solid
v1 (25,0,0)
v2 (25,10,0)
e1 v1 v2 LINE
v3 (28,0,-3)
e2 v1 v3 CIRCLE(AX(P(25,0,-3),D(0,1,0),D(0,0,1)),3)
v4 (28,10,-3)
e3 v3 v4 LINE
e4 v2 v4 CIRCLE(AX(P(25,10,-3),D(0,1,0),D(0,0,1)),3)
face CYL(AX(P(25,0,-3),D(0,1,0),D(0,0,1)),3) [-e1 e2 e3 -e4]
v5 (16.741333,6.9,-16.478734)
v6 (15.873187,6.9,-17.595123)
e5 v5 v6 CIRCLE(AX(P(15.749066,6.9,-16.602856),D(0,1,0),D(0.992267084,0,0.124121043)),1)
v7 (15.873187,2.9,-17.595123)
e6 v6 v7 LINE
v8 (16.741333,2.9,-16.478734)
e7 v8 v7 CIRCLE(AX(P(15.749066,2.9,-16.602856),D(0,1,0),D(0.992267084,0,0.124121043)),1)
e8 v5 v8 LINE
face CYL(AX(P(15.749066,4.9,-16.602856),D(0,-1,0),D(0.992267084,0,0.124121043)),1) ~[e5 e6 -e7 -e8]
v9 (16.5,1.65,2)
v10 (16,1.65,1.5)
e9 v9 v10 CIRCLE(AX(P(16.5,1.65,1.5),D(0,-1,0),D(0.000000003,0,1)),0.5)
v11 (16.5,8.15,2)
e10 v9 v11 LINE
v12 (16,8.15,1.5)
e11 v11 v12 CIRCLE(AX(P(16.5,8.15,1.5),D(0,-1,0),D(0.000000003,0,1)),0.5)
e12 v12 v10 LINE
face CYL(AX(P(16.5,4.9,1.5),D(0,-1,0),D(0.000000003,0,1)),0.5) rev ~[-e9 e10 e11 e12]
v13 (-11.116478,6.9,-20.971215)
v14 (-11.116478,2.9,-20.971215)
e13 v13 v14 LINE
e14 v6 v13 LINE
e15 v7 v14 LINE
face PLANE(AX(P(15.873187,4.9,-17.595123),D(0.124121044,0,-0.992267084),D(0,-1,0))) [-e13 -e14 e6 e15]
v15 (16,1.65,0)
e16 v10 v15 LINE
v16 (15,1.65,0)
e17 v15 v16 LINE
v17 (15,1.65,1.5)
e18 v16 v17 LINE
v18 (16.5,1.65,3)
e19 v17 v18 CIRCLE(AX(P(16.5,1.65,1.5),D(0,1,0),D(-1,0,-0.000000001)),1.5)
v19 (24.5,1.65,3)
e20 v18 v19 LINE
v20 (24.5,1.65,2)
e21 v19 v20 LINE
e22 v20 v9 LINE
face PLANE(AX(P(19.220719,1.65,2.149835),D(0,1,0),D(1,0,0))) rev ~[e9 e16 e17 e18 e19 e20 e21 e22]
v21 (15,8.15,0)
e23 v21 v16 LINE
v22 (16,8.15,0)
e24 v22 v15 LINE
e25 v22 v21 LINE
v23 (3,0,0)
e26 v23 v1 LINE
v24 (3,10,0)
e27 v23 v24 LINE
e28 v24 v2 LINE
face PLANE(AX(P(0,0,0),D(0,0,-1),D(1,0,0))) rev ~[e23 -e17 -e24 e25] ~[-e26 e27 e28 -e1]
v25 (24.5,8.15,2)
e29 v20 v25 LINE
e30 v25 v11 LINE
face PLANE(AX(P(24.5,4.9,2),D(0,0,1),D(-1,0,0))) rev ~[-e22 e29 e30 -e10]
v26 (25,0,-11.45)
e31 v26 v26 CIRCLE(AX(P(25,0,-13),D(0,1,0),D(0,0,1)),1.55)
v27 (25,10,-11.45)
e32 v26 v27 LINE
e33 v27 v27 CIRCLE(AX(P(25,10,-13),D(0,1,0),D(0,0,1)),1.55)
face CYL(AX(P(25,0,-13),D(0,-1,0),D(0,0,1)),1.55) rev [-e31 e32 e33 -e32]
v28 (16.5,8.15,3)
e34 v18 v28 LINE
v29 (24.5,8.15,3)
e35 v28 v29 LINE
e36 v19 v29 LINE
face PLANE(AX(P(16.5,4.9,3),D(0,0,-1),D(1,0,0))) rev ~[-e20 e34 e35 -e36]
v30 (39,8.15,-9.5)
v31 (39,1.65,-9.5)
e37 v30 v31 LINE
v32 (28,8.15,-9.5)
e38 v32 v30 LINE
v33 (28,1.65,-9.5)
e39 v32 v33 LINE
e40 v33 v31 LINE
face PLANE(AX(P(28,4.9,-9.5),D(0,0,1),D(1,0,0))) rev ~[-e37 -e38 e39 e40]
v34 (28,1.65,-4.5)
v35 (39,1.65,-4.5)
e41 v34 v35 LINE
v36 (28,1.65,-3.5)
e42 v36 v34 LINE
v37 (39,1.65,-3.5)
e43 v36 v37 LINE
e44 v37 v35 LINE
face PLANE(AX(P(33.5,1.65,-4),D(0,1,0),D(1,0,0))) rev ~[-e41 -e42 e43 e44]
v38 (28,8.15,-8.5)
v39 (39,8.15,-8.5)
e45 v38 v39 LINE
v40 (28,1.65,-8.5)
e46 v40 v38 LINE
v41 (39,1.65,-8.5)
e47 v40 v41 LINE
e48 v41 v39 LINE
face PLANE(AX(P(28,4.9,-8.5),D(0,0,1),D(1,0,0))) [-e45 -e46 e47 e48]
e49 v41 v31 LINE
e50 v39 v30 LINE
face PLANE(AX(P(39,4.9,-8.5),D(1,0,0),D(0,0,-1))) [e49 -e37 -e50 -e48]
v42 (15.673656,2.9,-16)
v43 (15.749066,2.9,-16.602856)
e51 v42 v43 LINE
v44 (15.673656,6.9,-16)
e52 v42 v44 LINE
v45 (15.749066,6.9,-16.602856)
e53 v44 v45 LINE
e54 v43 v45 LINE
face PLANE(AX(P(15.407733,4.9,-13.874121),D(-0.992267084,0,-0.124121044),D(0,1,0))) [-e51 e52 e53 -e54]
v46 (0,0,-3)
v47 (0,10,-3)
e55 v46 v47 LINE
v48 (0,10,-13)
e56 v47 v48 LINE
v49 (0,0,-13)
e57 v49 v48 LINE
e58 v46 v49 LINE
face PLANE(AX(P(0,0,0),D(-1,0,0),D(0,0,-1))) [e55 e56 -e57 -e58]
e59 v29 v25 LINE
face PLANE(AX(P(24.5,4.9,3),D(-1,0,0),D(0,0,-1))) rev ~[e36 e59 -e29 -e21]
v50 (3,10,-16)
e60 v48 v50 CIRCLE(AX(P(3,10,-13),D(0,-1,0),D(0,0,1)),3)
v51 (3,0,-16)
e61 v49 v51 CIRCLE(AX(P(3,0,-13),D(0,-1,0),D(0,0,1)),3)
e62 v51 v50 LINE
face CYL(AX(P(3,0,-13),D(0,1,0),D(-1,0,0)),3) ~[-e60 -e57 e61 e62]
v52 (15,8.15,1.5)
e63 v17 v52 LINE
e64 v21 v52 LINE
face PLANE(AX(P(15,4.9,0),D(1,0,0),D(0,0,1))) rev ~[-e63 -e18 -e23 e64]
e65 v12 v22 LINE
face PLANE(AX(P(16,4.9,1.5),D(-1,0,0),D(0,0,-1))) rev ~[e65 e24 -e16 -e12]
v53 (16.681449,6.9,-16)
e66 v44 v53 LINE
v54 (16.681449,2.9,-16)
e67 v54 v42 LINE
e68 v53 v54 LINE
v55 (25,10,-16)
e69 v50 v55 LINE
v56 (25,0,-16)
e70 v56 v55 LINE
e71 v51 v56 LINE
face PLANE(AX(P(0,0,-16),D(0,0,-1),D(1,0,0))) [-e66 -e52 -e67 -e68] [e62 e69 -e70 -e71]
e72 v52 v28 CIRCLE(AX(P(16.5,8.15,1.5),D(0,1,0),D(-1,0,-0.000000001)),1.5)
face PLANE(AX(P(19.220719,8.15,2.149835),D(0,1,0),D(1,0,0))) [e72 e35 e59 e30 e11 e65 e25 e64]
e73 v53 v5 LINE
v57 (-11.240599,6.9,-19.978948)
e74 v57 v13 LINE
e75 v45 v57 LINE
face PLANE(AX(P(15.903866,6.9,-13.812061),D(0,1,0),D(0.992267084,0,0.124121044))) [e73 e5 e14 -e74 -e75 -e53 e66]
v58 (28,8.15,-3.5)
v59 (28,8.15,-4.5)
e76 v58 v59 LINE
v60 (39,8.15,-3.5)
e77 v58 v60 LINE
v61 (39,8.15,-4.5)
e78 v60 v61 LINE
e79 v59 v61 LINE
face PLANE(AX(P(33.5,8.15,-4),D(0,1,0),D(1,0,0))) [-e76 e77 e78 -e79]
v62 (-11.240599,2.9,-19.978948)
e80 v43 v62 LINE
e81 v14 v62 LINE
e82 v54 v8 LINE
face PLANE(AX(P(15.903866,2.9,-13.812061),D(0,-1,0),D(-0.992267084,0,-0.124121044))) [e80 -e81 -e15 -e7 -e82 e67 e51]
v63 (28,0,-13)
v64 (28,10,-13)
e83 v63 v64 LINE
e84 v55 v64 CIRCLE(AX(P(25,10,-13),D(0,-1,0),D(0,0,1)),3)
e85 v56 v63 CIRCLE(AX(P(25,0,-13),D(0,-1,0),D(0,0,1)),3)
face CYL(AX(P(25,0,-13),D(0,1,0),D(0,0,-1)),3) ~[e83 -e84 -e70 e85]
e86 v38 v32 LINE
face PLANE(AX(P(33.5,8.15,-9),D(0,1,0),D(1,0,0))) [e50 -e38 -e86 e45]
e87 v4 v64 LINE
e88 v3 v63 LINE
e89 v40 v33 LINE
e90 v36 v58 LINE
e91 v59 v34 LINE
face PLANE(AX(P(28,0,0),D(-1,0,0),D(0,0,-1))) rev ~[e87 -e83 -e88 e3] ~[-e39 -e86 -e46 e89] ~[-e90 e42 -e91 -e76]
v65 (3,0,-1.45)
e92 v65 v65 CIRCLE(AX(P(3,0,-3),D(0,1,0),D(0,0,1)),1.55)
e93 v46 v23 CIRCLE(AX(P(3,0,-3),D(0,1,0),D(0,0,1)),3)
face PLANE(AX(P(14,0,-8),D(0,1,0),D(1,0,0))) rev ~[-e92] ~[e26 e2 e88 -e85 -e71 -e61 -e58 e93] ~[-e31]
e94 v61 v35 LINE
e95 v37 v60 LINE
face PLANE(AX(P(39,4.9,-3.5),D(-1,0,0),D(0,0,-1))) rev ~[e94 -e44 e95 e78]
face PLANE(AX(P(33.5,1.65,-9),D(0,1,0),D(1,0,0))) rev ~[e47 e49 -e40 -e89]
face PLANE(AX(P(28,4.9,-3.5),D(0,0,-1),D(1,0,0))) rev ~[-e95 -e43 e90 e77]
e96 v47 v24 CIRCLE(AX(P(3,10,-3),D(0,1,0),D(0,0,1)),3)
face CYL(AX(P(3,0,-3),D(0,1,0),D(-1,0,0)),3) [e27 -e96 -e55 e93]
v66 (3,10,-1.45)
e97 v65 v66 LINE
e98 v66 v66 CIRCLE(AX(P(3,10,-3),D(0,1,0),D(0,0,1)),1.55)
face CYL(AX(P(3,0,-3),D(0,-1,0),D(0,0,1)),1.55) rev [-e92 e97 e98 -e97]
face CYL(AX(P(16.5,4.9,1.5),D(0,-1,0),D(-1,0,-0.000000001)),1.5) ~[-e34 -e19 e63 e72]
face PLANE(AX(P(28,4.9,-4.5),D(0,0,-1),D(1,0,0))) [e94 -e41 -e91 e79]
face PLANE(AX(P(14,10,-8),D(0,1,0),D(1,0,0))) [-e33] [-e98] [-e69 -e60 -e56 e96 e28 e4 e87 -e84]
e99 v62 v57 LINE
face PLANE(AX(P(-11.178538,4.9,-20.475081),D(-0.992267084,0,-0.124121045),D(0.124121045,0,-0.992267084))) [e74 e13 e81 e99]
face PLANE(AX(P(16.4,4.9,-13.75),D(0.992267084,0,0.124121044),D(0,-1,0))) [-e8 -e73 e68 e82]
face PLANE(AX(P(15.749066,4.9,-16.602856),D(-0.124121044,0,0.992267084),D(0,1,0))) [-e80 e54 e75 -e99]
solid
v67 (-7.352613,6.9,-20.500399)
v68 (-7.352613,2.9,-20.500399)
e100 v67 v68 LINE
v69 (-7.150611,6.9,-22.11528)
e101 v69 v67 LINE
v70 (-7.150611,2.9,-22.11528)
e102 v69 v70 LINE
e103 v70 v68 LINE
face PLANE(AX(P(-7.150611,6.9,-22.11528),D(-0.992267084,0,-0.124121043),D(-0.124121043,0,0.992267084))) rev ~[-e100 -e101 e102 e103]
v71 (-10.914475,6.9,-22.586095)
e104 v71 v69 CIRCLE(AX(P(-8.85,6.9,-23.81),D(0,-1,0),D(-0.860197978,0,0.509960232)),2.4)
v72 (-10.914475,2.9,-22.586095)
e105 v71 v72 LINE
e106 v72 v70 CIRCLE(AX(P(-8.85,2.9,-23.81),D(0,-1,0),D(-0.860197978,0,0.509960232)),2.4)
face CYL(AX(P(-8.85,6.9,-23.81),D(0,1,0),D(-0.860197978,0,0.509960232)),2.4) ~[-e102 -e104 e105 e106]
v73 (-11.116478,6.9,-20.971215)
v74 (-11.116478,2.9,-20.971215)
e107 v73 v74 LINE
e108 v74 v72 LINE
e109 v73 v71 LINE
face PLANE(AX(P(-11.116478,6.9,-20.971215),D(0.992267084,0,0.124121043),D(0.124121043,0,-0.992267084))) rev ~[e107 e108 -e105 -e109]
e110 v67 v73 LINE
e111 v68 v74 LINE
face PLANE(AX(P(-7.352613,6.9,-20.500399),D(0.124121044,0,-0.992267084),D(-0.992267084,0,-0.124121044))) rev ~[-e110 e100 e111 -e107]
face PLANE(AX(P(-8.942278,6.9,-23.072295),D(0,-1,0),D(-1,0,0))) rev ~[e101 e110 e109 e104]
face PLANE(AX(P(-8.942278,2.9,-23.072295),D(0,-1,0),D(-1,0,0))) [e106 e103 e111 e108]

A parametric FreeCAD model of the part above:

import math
import FreeCAD as App
import Part
import Sketcher
from FreeCAD import Vector
Q = App.Units.Quantity


def edges_at(feature, points):
    """Names of the edges that pass closest to the given points."""
    edges = feature.Shape.Edges
    near = lambda p: min(range(len(edges)), key=lambda i: edges[i].distToShape(Part.Vertex(*p))[0])
    return sorted({f"Edge{near(p) + 1}" for p in points})


def add_polygon(sketch, points):
    """Adds a closed chain of lines whose ends are joined by coincident constraints."""
    first, n = sketch.GeometryCount, len(points)
    for a, b in zip(points, points[1:] + points[:1]):
        sketch.addGeometry(Part.LineSegment(App.Vector(*a, 0), App.Vector(*b, 0)), False)
    for i in range(n):
        sketch.addConstraint(Sketcher.Constraint("Coincident", first + i, 2, first + (i + 1) % n, 1))

doc = App.newDocument("Part")
body = doc.addObject("PartDesign::Body", "Body")

sketch1 = body.newObject("Sketcher::SketchObject", "Sketch")
sketch1.AttachmentSupport = (doc.getObject("XZ_Plane"), [""])
sketch1.MapMode = "FlatFace"
add_polygon(sketch1, [(0, -16), (0, 0), (28, 0), (28, -16)])
sketch1.addGeometry(Part.Circle(Vector(3, -3, 0), Vector(0, 0, 1), 1.55), False)
sketch1.addGeometry(Part.Circle(Vector(25, -13, 0), Vector(0, 0, 1), 1.55), False)
sketch1.addConstraint(Sketcher.Constraint("Vertical", 0))
sketch1.addConstraint(Sketcher.Constraint("Horizontal", 1))
sketch1.addConstraint(Sketcher.Constraint("Vertical", 2))
sketch1.addConstraint(Sketcher.Constraint("Horizontal", 3))
sketch1.addConstraint(Sketcher.Constraint("Coincident", 0, 2, -1, 1))
sketch1.addConstraint(Sketcher.Constraint("Equal", 4, 5))
sketch1.addConstraint(Sketcher.Constraint("Diameter", 4, 3.1))
sketch1.addConstraint(Sketcher.Constraint("DistanceX", 1, 1, 1, 2, 28.0))
sketch1.addConstraint(Sketcher.Constraint("DistanceY", 0, 1, 0, 2, 16.0))
sketch1.addConstraint(Sketcher.Constraint("DistanceX", -1, 1, 4, 3, 3.0))
sketch1.addConstraint(Sketcher.Constraint("DistanceY", 4, 3, -1, 1, 3.0))
sketch1.addConstraint(Sketcher.Constraint("DistanceX", -1, 1, 5, 3, 25.0))
sketch1.addConstraint(Sketcher.Constraint("DistanceY", 5, 3, -1, 1, 13.0))
pad1 = body.newObject("PartDesign::Pad", "Pad")
pad1.Profile = sketch1
pad1.Length = 10
pad1.Reversed = True
doc.recompute()

fillet = body.newObject("PartDesign::Fillet", "Fillet")
fillet.Base = (pad1, edges_at(pad1, [
    (0, 5, -16),
    (28, 5, -16),
    (28, 5, 0),
    (0, 5, 0),
]))
fillet.Radius = 3

sketch2 = body.newObject("Sketcher::SketchObject", "Sketch001")
sketch2.Placement = App.Placement(Vector(-0.012274, 0, -15.802984), App.Rotation(Vector(-0.992267084, 0, -0.124121044), Vector(0, 1, 0), Vector(0.124121044, 0, -0.992267084), "ZXY"))
add_polygon(sketch2, [(-16.540178, 6.9), (-16.540178, 2.9), (-15.540178, 2.9), (-15.540178, 6.9)])
sketch2.addConstraint(Sketcher.Constraint("Vertical", 0))
sketch2.addConstraint(Sketcher.Constraint("Horizontal", 1))
sketch2.addConstraint(Sketcher.Constraint("Vertical", 2))
sketch2.addConstraint(Sketcher.Constraint("Horizontal", 3))
sketch2.addConstraint(Sketcher.Constraint("DistanceX", 1, 1, 1, 2, 1.0))
sketch2.addConstraint(Sketcher.Constraint("DistanceY", 0, 2, 0, 1, 4.0))
sketch2.addConstraint(Sketcher.Constraint("DistanceY", -1, 1, 0, 2, 2.9))
sketch2.addConstraint(Sketcher.Constraint("DistanceX", 0, 2, -1, 1, 16.540178))

sketch3 = body.newObject("Sketcher::SketchObject", "Sketch002")
sketch3.AttachmentSupport = (doc.getObject("XZ_Plane"), [""])
sketch3.MapMode = "FlatFace"
sketch3.AttachmentOffset = App.Placement(Vector(0, 0, -4.9), App.Rotation())
sketch3.addGeometry(Part.LineSegment(Vector(16.4, -13.75, 0), Vector(16.741333, -16.478734, 0)), False)
sketch3.addGeometry(Part.ArcOfCircle(Part.Circle(Vector(15.749066, -16.602856, 0), Vector(0, 0, 1), 1), math.radians(-82.87), math.radians(7.13)), False)
sketch3.addGeometry(Part.LineSegment(Vector(15.873187, -17.595123, 0), Vector(-11.116478, -20.971215, 0)), False)
sketch3.addConstraint(Sketcher.Constraint("Tangent", 0, 2, 1, 2))
sketch3.addConstraint(Sketcher.Constraint("Tangent", 1, 1, 2, 1))
sketch3.addConstraint(Sketcher.Constraint("Perpendicular", 0, 2))
sketch3.addConstraint(Sketcher.Constraint("Radius", 1, 1.0))
sketch3.addConstraint(Sketcher.Constraint("Distance", 2, 27.2))
sketch3.addConstraint(Sketcher.Constraint("DistanceX", -1, 1, 0, 1, 16.4))
sketch3.addConstraint(Sketcher.Constraint("Angle", 0, Q("-82.87 deg")))
sketch3.addConstraint(Sketcher.Constraint("Distance", 0, 2.75))
sketch3.addConstraint(Sketcher.Constraint("DistanceY", 0, 1, -1, 1, 13.75))
doc.recompute()

additivepipe = body.newObject("PartDesign::AdditivePipe", "AdditivePipe")
additivepipe.Profile = sketch2
additivepipe.Spine = (sketch3, ["Edge1", "Edge2", "Edge3"])

sketch4 = body.newObject("Sketcher::SketchObject", "Sketch003")
sketch4.AttachmentSupport = (doc.getObject("XZ_Plane"), [""])
sketch4.MapMode = "FlatFace"
sketch4.AttachmentOffset = App.Placement(Vector(0, 0, -4.9), App.Rotation())
sketch4.addGeometry(Part.LineSegment(Vector(15, 0, 0), Vector(15, 1.5, 0)), False)
sketch4.addGeometry(Part.ArcOfCircle(Part.Circle(Vector(16.5, 1.5, 0), Vector(0, 0, 1), 1.5), math.radians(90), math.radians(180)), False)
sketch4.addGeometry(Part.LineSegment(Vector(16.5, 3, 0), Vector(24.5, 3, 0)), False)
sketch4.addGeometry(Part.LineSegment(Vector(24.5, 3, 0), Vector(24.5, 2, 0)), False)
sketch4.addGeometry(Part.LineSegment(Vector(24.5, 2, 0), Vector(16.5, 2, 0)), False)
sketch4.addGeometry(Part.ArcOfCircle(Part.Circle(Vector(16.5, 1.5, 0), Vector(0, 0, 1), 0.5), math.radians(90), math.radians(180)), False)
sketch4.addGeometry(Part.LineSegment(Vector(16, 1.5, 0), Vector(16, 0, 0)), False)
sketch4.addGeometry(Part.LineSegment(Vector(16, 0, 0), Vector(15, 0, 0)), False)
add_polygon(sketch4, [(28, -4.5), (28, -3.5), (39, -3.5), (39, -4.5)])
add_polygon(sketch4, [(28, -9.5), (28, -8.5), (39, -8.5), (39, -9.5)])
sketch4.addConstraint(Sketcher.Constraint("Tangent", 0, 2, 1, 2))
sketch4.addConstraint(Sketcher.Constraint("Tangent", 1, 1, 2, 1))
sketch4.addConstraint(Sketcher.Constraint("Coincident", 2, 2, 3, 1))
sketch4.addConstraint(Sketcher.Constraint("Coincident", 3, 2, 4, 1))
sketch4.addConstraint(Sketcher.Constraint("Tangent", 4, 2, 5, 1))
sketch4.addConstraint(Sketcher.Constraint("Tangent", 5, 2, 6, 1))
sketch4.addConstraint(Sketcher.Constraint("Coincident", 6, 2, 7, 1))
sketch4.addConstraint(Sketcher.Constraint("Coincident", 7, 2, 0, 1))
sketch4.addConstraint(Sketcher.Constraint("Vertical", 0))
sketch4.addConstraint(Sketcher.Constraint("Horizontal", 2))
sketch4.addConstraint(Sketcher.Constraint("Vertical", 3))
sketch4.addConstraint(Sketcher.Constraint("Horizontal", 4))
sketch4.addConstraint(Sketcher.Constraint("Vertical", 6))
sketch4.addConstraint(Sketcher.Constraint("Horizontal", 7))
sketch4.addConstraint(Sketcher.Constraint("Vertical", 8))
sketch4.addConstraint(Sketcher.Constraint("Horizontal", 9))
sketch4.addConstraint(Sketcher.Constraint("Vertical", 10))
sketch4.addConstraint(Sketcher.Constraint("Horizontal", 11))
sketch4.addConstraint(Sketcher.Constraint("Vertical", 12))
sketch4.addConstraint(Sketcher.Constraint("Horizontal", 13))
sketch4.addConstraint(Sketcher.Constraint("Vertical", 14))
sketch4.addConstraint(Sketcher.Constraint("Horizontal", 15))
sketch4.addConstraint(Sketcher.Constraint("Coincident", 5, 3, 1, 3))
sketch4.addConstraint(Sketcher.Constraint("PointOnObject", 6, 2, -1))
sketch4.addConstraint(Sketcher.Constraint("Vertical", 11, 2, 12, 2))
sketch4.addConstraint(Sketcher.Constraint("Vertical", 10, 2, 13, 2))
sketch4.addConstraint(Sketcher.Constraint("Equal", 3, 8))
sketch4.addConstraint(Sketcher.Constraint("Equal", 10, 12))
sketch4.addConstraint(Sketcher.Constraint("Radius", 1, 1.5))
sketch4.addConstraint(Sketcher.Constraint("Radius", 5, 0.5))
sketch4.addConstraint(Sketcher.Constraint("DistanceX", 2, 1, 2, 2, 8.0))
sketch4.addConstraint(Sketcher.Constraint("DistanceX", 9, 1, 9, 2, 11.0))
sketch4.addConstraint(Sketcher.Constraint("DistanceY", 0, 1, 0, 2, 1.5))
sketch4.addConstraint(Sketcher.Constraint("DistanceX", -1, 1, 0, 2, 15.0))
sketch4.addConstraint(Sketcher.Constraint("DistanceX", -1, 1, 8, 2, 28.0))
sketch4.addConstraint(Sketcher.Constraint("DistanceY", 8, 2, 1, 3, 5.0))
sketch4.addConstraint(Sketcher.Constraint("DistanceY", 12, 2, 11, 2, 4.0))
pad2 = body.newObject("PartDesign::Pad", "Pad001")
pad2.Profile = sketch4
pad2.Length = 6.5
pad2.Midplane = True
body2 = doc.addObject("PartDesign::Body", "Body001")

sketch5 = body2.newObject("Sketcher::SketchObject", "Sketch004")
sketch5.AttachmentSupport = (doc.getObject("XZ_Plane001"), [""])
sketch5.MapMode = "FlatFace"
sketch5.AttachmentOffset = App.Placement(Vector(0, 0, -6.9), App.Rotation())
sketch5.addGeometry(Part.LineSegment(Vector(-10.914475, -22.586095, 0), Vector(-11.116478, -20.971215, 0)), False)
sketch5.addGeometry(Part.LineSegment(Vector(-11.116478, -20.971215, 0), Vector(-7.352613, -20.500399, 0)), False)
sketch5.addGeometry(Part.LineSegment(Vector(-7.352613, -20.500399, 0), Vector(-7.150611, -22.11528, 0)), False)
sketch5.addGeometry(Part.ArcOfCircle(Part.Circle(Vector(-8.85, -23.81, 0), Vector(0, 0, 1), 2.4), math.radians(149.338819), math.radians(404.921181)), False)
sketch5.addConstraint(Sketcher.Constraint("Coincident", 0, 2, 1, 1))
sketch5.addConstraint(Sketcher.Constraint("Coincident", 1, 2, 2, 1))
sketch5.addConstraint(Sketcher.Constraint("Coincident", 2, 2, 3, 2))
sketch5.addConstraint(Sketcher.Constraint("Coincident", 3, 1, 0, 1))
sketch5.addConstraint(Sketcher.Constraint("Perpendicular", 0, 1))
sketch5.addConstraint(Sketcher.Constraint("Perpendicular", 1, 2))
sketch5.addConstraint(Sketcher.Constraint("Equal", 0, 2))
sketch5.addConstraint(Sketcher.Constraint("Radius", 3, 2.4))
sketch5.addConstraint(Sketcher.Constraint("Angle", 0, Q("97.13 deg")))
sketch5.addConstraint(Sketcher.Constraint("DistanceX", 3, 3, -1, 1, 8.85))
sketch5.addConstraint(Sketcher.Constraint("DistanceY", 3, 3, -1, 1, 23.81))
sketch5.addConstraint(Sketcher.Constraint("DistanceY", 1, 2, -1, 1, 20.500399))
sketch5.addConstraint(Sketcher.Constraint("DistanceX", 2, 2, -1, 1, 7.150611))
pad3 = body2.newObject("PartDesign::Pad", "Pad002")
pad3.Profile = sketch5
pad3.Length = 4

doc.recompute()
